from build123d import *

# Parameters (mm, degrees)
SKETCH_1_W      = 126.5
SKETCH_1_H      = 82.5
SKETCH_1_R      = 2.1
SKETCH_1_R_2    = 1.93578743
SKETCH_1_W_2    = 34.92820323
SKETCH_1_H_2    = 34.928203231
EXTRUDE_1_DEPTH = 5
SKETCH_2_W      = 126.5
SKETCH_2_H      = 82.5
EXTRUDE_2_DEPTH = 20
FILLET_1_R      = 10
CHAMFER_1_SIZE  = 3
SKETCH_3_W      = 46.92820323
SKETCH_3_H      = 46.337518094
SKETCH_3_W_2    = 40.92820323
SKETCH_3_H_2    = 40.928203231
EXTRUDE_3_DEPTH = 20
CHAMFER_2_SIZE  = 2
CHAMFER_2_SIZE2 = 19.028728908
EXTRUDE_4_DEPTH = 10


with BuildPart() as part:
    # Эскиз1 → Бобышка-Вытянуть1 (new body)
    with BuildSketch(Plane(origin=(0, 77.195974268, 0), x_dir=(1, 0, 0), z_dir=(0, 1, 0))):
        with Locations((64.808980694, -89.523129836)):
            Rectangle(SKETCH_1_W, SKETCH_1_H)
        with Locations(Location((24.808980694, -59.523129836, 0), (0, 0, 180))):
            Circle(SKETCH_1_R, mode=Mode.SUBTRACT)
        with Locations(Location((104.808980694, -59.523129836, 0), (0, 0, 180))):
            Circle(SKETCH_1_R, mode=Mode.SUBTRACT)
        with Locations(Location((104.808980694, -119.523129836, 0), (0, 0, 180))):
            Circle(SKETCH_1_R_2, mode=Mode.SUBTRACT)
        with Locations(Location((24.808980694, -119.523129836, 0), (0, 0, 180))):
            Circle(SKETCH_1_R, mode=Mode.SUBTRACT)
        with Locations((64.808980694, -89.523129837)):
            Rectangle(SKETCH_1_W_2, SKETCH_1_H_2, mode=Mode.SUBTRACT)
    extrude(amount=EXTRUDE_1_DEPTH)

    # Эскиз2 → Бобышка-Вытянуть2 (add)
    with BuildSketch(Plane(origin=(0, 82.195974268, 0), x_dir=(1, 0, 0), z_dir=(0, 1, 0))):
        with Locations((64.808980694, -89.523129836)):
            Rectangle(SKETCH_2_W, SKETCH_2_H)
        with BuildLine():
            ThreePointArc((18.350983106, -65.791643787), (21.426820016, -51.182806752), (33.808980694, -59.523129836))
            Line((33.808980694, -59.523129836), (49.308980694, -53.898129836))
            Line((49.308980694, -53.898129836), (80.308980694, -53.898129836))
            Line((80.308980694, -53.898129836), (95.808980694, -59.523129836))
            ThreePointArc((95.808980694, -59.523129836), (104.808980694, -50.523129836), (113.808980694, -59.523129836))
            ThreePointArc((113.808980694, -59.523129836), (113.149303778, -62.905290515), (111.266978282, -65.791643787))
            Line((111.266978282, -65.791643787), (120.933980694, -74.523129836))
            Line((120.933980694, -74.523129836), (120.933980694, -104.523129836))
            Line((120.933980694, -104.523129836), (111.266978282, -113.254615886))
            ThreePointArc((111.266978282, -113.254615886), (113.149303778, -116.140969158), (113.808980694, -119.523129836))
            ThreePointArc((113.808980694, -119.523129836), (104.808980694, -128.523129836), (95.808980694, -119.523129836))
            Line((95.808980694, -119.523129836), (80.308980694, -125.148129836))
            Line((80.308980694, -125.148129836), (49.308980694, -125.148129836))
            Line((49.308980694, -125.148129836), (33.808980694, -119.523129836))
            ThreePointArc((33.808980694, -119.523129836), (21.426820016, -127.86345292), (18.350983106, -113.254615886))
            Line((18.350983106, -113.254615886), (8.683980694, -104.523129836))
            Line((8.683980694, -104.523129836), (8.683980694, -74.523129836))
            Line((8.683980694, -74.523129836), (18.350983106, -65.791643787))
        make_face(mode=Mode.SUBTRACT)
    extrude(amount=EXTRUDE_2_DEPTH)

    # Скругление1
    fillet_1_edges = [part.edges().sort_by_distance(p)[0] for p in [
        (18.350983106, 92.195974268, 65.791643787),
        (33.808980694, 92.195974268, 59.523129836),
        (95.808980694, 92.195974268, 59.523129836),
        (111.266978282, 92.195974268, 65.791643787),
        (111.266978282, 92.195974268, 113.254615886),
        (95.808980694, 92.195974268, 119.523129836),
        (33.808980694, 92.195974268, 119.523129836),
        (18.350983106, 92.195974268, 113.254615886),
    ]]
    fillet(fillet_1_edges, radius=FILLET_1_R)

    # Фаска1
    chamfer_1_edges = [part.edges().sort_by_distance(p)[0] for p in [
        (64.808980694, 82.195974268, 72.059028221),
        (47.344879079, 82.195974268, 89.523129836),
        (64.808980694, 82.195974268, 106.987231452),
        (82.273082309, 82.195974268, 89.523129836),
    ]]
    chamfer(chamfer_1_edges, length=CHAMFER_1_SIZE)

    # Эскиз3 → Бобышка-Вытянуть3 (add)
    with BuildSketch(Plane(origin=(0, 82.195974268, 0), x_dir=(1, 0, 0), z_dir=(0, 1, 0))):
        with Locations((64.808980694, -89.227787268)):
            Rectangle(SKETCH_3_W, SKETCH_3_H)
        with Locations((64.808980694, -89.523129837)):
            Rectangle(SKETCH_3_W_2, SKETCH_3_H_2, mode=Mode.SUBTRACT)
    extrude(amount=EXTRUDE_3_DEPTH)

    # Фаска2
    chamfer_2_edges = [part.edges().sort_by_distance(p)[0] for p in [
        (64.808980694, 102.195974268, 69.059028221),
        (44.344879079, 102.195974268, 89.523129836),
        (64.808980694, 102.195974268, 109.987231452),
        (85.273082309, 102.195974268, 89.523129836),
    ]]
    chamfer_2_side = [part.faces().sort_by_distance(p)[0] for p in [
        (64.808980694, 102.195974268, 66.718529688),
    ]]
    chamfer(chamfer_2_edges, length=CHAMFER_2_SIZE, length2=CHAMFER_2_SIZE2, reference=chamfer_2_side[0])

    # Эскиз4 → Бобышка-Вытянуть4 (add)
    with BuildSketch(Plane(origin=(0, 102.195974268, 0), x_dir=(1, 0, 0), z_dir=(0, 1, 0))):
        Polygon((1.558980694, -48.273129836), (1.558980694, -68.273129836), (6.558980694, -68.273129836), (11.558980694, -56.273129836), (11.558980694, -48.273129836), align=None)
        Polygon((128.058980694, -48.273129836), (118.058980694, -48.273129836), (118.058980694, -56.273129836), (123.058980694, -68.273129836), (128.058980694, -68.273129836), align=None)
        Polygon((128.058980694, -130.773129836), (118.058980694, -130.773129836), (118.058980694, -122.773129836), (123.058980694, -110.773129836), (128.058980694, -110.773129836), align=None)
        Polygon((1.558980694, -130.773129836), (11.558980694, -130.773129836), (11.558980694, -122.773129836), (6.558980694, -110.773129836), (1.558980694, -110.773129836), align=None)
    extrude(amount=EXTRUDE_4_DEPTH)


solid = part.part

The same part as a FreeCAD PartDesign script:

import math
import FreeCAD as App
import Part
import Sketcher
from FreeCAD import Vector


def edges_at(feature, points):
    """Names of the edges that pass closest to the given points."""
    edges = feature.Shape.Edges
    near = lambda p: min(range(len(edges)), key=lambda i: edges[i].distToShape(Part.Vertex(*p))[0])
    return sorted({f"Edge{near(p) + 1}" for p in points})


def add_polygon(sketch, points):
    """Adds a closed chain of lines whose ends are joined by coincident constraints."""
    first, n = sketch.GeometryCount, len(points)
    for a, b in zip(points, points[1:] + points[:1]):
        sketch.addGeometry(Part.LineSegment(App.Vector(*a, 0), App.Vector(*b, 0)), False)
    for i in range(n):
        sketch.addConstraint(Sketcher.Constraint("Coincident", first + i, 2, first + (i + 1) % n, 1))

doc = App.newDocument("Part")
body = doc.addObject("PartDesign::Body", "Body")

sketch1 = body.newObject("Sketcher::SketchObject", "Sketch")
sketch1.AttachmentSupport = (doc.getObject("XZ_Plane"), [""])
sketch1.MapMode = "FlatFace"
sketch1.AttachmentOffset = App.Placement(Vector(0, 0, -77.195974), App.Rotation())
add_polygon(sketch1, [(1.558981, 48.27313), (1.558981, 130.77313), (128.058981, 130.77313), (128.058981, 48.27313)])
sketch1.addGeometry(Part.Circle(Vector(24.808981, 119.52313, 0), Vector(0, 0, 1), 2.1), False)
sketch1.addGeometry(Part.Circle(Vector(104.808981, 119.52313, 0), Vector(0, 0, 1), 1.935787), False)
add_polygon(sketch1, [(82.273082, 106.987231), (47.344879, 106.987231), (47.344879, 72.059028), (82.273082, 72.059028)])
sketch1.addGeometry(Part.Circle(Vector(24.808981, 59.52313, 0), Vector(0, 0, 1), 2.1), False)
sketch1.addGeometry(Part.Circle(Vector(104.808981, 59.52313, 0), Vector(0, 0, 1), 2.1), False)
sketch1.addConstraint([
    Sketcher.Constraint("Vertical", 0),
    Sketcher.Constraint("Horizontal", 1),
    Sketcher.Constraint("Vertical", 2),
    Sketcher.Constraint("Horizontal", 3),
    Sketcher.Constraint("Horizontal", 6),
    Sketcher.Constraint("Vertical", 7),
    Sketcher.Constraint("Horizontal", 8),
    Sketcher.Constraint("Vertical", 9),
    Sketcher.Constraint("Equal", 4, 10),
    Sketcher.Constraint("Equal", 10, 11),
    Sketcher.Constraint("Horizontal", 4, 3, 5, 3),
    Sketcher.Constraint("Horizontal", 10, 3, 11, 3),
    Sketcher.Constraint("Vertical", 4, 3, 10, 3),
    Sketcher.Constraint("Vertical", 5, 3, 11, 3),
    Sketcher.Constraint("Equal", 8, 7),
    Sketcher.Constraint("Diameter", 4, 4.2),
    Sketcher.Constraint("DistanceX", 1, 1, 1, 2, 126.5),
    Sketcher.Constraint("DistanceY", 0, 1, 0, 2, 82.5),
    Sketcher.Constraint("DistanceX", 4, 3, 5, 3, 80.0),
    Sketcher.Constraint("DistanceY", 10, 3, 4, 3, 60.0),
    Sketcher.Constraint("DistanceX", 0, 2, 4, 3, 23.25),
    Sketcher.Constraint("DistanceY", 4, 3, 0, 2, 11.25),
    Sketcher.Constraint("Diameter", 5, 3.871575),
    Sketcher.Constraint("DistanceX", 4, 3, 6, 2, 22.535898),
    Sketcher.Constraint("DistanceY", 6, 2, 4, 3, 12.535898),
    Sketcher.Constraint("DistanceY", 10, 3, 7, 2, 12.535898),
    Sketcher.Constraint("DistanceX", -1, 1, 4, 3, 24.808981),
    Sketcher.Constraint("DistanceY", -1, 1, 4, 3, 119.52313),
])
pad1 = body.newObject("PartDesign::Pad", "Pad")
pad1.Profile = sketch1
pad1.Length = 5
pad1.Reversed = True

sketch2 = body.newObject("Sketcher::SketchObject", "Sketch001")
sketch2.AttachmentSupport = (doc.getObject("XZ_Plane"), [""])
sketch2.MapMode = "FlatFace"
sketch2.AttachmentOffset = App.Placement(Vector(0, 0, -82.195974), App.Rotation())
add_polygon(sketch2, [(1.558981, 48.27313), (1.558981, 130.77313), (128.058981, 130.77313), (128.058981, 48.27313)])
sketch2.addGeometry(Part.LineSegment(Vector(8.683981, 74.52313, 0), Vector(18.350983, 65.791644, 0)), False)
sketch2.addGeometry(Part.ArcOfCircle(Part.Circle(Vector(24.808981, 59.52313, 0), Vector(0, 0, 1), 9), math.radians(135.853008), math.radians(360)), False)
sketch2.addGeometry(Part.LineSegment(Vector(33.808981, 59.52313, 0), Vector(49.308981, 53.89813, 0)), False)
sketch2.addGeometry(Part.LineSegment(Vector(49.308981, 53.89813, 0), Vector(80.308981, 53.89813, 0)), False)
sketch2.addGeometry(Part.LineSegment(Vector(80.308981, 53.89813, 0), Vector(95.808981, 59.52313, 0)), False)
sketch2.addGeometry(Part.ArcOfCircle(Part.Circle(Vector(104.808981, 59.52313, 0), Vector(0, 0, 1), 9), math.radians(180), math.radians(360)), False)
sketch2.addGeometry(Part.ArcOfCircle(Part.Circle(Vector(104.808981, 59.52313, 0), Vector(0, 0, 1), 9), math.radians(0), math.radians(44.146992)), False)
sketch2.addGeometry(Part.LineSegment(Vector(111.266978, 65.791644, 0), Vector(120.933981, 74.52313, 0)), False)
sketch2.addGeometry(Part.LineSegment(Vector(120.933981, 74.52313, 0), Vector(120.933981, 104.52313, 0)), False)
sketch2.addGeometry(Part.LineSegment(Vector(120.933981, 104.52313, 0), Vector(111.266978, 113.254616, 0)), False)
sketch2.addGeometry(Part.ArcOfCircle(Part.Circle(Vector(104.808981, 119.52313, 0), Vector(0, 0, 1), 9), math.radians(-44.146992), math.radians(0)), False)
sketch2.addGeometry(Part.ArcOfCircle(Part.Circle(Vector(104.808981, 119.52313, 0), Vector(0, 0, 1), 9), math.radians(0), math.radians(180)), False)
sketch2.addGeometry(Part.LineSegment(Vector(95.808981, 119.52313, 0), Vector(80.308981, 125.14813, 0)), False)
sketch2.addGeometry(Part.LineSegment(Vector(80.308981, 125.14813, 0), Vector(49.308981, 125.14813, 0)), False)
sketch2.addGeometry(Part.LineSegment(Vector(49.308981, 125.14813, 0), Vector(33.808981, 119.52313, 0)), False)
sketch2.addGeometry(Part.ArcOfCircle(Part.Circle(Vector(24.808981, 119.52313, 0), Vector(0, 0, 1), 9), math.radians(0), math.radians(224.146992)), False)
sketch2.addGeometry(Part.LineSegment(Vector(18.350983, 113.254616, 0), Vector(8.683981, 104.52313, 0)), False)
sketch2.addGeometry(Part.LineSegment(Vector(8.683981, 104.52313, 0), Vector(8.683981, 74.52313, 0)), False)
sketch2.addConstraint([
    Sketcher.Constraint("Coincident", 4, 2, 5, 1),
    Sketcher.Constraint("Coincident", 5, 2, 6, 1),
    Sketcher.Constraint("Coincident", 6, 2, 7, 1),
    Sketcher.Constraint("Coincident", 7, 2, 8, 1),
    Sketcher.Constraint("Coincident", 8, 2, 9, 1),
    Sketcher.Constraint("Tangent", 9, 2, 10, 1),
    Sketcher.Constraint("Coincident", 10, 2, 11, 1),
    Sketcher.Constraint("Coincident", 11, 2, 12, 1),
    Sketcher.Constraint("Coincident", 12, 2, 13, 1),
    Sketcher.Constraint("Coincident", 13, 2, 14, 1),
    Sketcher.Constraint("Tangent", 14, 2, 15, 1),
    Sketcher.Constraint("Coincident", 15, 2, 16, 1),
    Sketcher.Constraint("Coincident", 16, 2, 17, 1),
    Sketcher.Constraint("Coincident", 17, 2, 18, 1),
    Sketcher.Constraint("Coincident", 18, 2, 19, 1),
    Sketcher.Constraint("Coincident", 19, 2, 20, 1),
    Sketcher.Constraint("Coincident", 20, 2, 21, 1),
    Sketcher.Constraint("Coincident", 21, 2, 4, 1),
    Sketcher.Constraint("Vertical", 0),
    Sketcher.Constraint("Horizontal", 1),
    Sketcher.Constraint("Vertical", 2),
    Sketcher.Constraint("Horizontal", 3),
    Sketcher.Constraint("Horizontal", 7),
    Sketcher.Constraint("Vertical", 12),
    Sketcher.Constraint("Horizontal", 17),
    Sketcher.Constraint("Vertical", 21),
    Sketcher.Constraint("Equal", 5, 9),
    Sketcher.Constraint("Equal", 9, 10),
    Sketcher.Constraint("Equal", 10, 14),
    Sketcher.Constraint("Equal", 14, 15),
    Sketcher.Constraint("Equal", 15, 19),
    Sketcher.Constraint("Parallel", 4, 13),
    Sketcher.Constraint("Parallel", 6, 16),
    Sketcher.Constraint("Parallel", 8, 18),
    Sketcher.Constraint("Parallel", 11, 20),
    Sketcher.Constraint("Horizontal", 5, 3, 9, 3),
    Sketcher.Constraint("Horizontal", 15, 3, 19, 3),
    Sketcher.Constraint("Horizontal", 10, 3, 5, 2),
    Sketcher.Constraint("Horizontal", 5, 2, 8, 2),
    Sketcher.Constraint("Horizontal", 8, 2, 9, 2),
    Sketcher.Constraint("Horizontal", 4, 2, 10, 2),
    Sketcher.Constraint("Horizontal", 19, 3, 14, 2),
    Sketcher.Constraint("Horizontal", 14, 2, 15, 2),
    Sketcher.Constraint("Horizontal", 15, 2, 18, 2),
    Sketcher.Constraint("Horizontal", 13, 2, 19, 2),
    Sketcher.Constraint("Horizontal", 12, 2, 20, 2),
    Sketcher.Constraint("Horizontal", 11, 2, 21, 2),
    Sketcher.Constraint("Vertical", 10, 3, 14, 3),
    Sketcher.Constraint("Vertical", 5, 3, 19, 3),
    Sketcher.Constraint("Vertical", 10, 2, 13, 2),
    Sketcher.Constraint("Vertical", 7, 2, 16, 2),
    Sketcher.Constraint("Vertical", 6, 2, 17, 2),
    Sketcher.Constraint("Radius", 5, 9.0),
    Sketcher.Constraint("DistanceX", 7, 1, 7, 2, 31.0),
    Sketcher.Constraint("DistanceY", 12, 1, 12, 2, 30.0),
    Sketcher.Constraint("DistanceX", 1, 1, 1, 2, 126.5),
    Sketcher.Constraint("DistanceY", 0, 1, 0, 2, 82.5),
    Sketcher.Constraint("DistanceX", 5, 3, 9, 3, 80.0),
    Sketcher.Constraint("DistanceY", 10, 3, 14, 3, 60.0),
    Sketcher.Constraint("DistanceX", 0, 2, 19, 3, 23.25),
    Sketcher.Constraint("DistanceY", 19, 3, 0, 2, 11.25),
    Sketcher.Constraint("DistanceY", 6, 2, 5, 2, 5.625),
    Sketcher.Constraint("DistanceX", 9, 2, 11, 2, 7.125),
    Sketcher.Constraint("DistanceX", -1, 1, 5, 3, 24.808981),
    Sketcher.Constraint("DistanceY", -1, 1, 5, 3, 59.52313),
    Sketcher.Constraint("DistanceX", -1, 1, 10, 2, 111.266978),
])
pad2 = body.newObject("PartDesign::Pad", "Pad001")
pad2.Profile = sketch2
pad2.Length = 20
pad2.Reversed = True
doc.recompute()

fillet = body.newObject("PartDesign::Fillet", "Fillet")
fillet.Base = (pad2, edges_at(pad2, [
    (18.351, 92.196, 65.792),
    (33.809, 92.196, 59.523),
    (95.809, 92.196, 59.523),
    (111.267, 92.196, 65.792),
    (111.267, 92.196, 113.255),
    (95.809, 92.196, 119.523),
    (33.809, 92.196, 119.523),
    (18.351, 92.196, 113.255),
]))
fillet.Radius = 10
doc.recompute()

chamfer = body.newObject("PartDesign::Chamfer", "Chamfer")
chamfer.Base = (fillet, edges_at(fillet, [
    (64.809, 82.196, 72.059),
    (47.345, 82.196, 89.523),
    (64.809, 82.196, 106.987),
    (82.273, 82.196, 89.523),
]))
chamfer.Size = 3

sketch3 = body.newObject("Sketcher::SketchObject", "Sketch002")
sketch3.AttachmentSupport = (doc.getObject("XZ_Plane"), [""])
sketch3.MapMode = "FlatFace"
sketch3.AttachmentOffset = App.Placement(Vector(0, 0, -82.195974), App.Rotation())
add_polygon(sketch3, [(41.344879, 66.059028), (41.344879, 112.396546), (88.273082, 112.396546), (88.273082, 66.059028)])
add_polygon(sketch3, [(85.273082, 109.987231), (44.344879, 109.987231), (44.344879, 69.059028), (85.273082, 69.059028)])
sketch3.addConstraint([
    Sketcher.Constraint("Vertical", 0),
    Sketcher.Constraint("Horizontal", 1),
    Sketcher.Constraint("Vertical", 2),
    Sketcher.Constraint("Horizontal", 3),
    Sketcher.Constraint("Horizontal", 4),
    Sketcher.Constraint("Vertical", 5),
    Sketcher.Constraint("Horizontal", 6),
    Sketcher.Constraint("Vertical", 7),
    Sketcher.Constraint("Equal", 6, 5),
    Sketcher.Constraint("DistanceX", 0, 2, 4, 2, 3.0),
    Sketcher.Constraint("DistanceY", 3, 2, 5, 2, 3.0),
    Sketcher.Constraint("DistanceX", 6, 2, 2, 2, 3.0),
    Sketcher.Constraint("DistanceY", 0, 1, 0, 2, 46.337518),
    Sketcher.Constraint("DistanceX", 1, 1, 1, 2, 46.928203),
    Sketcher.Constraint("DistanceX", -1, 1, 0, 2, 41.344879),
    Sketcher.Constraint("DistanceY", -1, 1, 2, 2, 66.059028),
])
pad3 = body.newObject("PartDesign::Pad", "Pad002")
pad3.Profile = sketch3
pad3.Length = 20
pad3.Reversed = True
doc.recompute()

chamfer2 = body.newObject("PartDesign::Chamfer", "Chamfer001")
chamfer2.Base = (pad3, edges_at(pad3, [
    (64.809, 102.196, 69.059),
    (44.345, 102.196, 89.523),
    (64.809, 102.196, 109.987),
    (85.273, 102.196, 89.523),
]))
chamfer2.ChamferType = "Two distances"
chamfer2.Size = 2
chamfer2.Size2 = 19.028729

sketch4 = body.newObject("Sketcher::SketchObject", "Sketch003")
sketch4.AttachmentSupport = (doc.getObject("XZ_Plane"), [""])
sketch4.MapMode = "FlatFace"
sketch4.AttachmentOffset = App.Placement(Vector(0, 0, -102.195974), App.Rotation())
add_polygon(sketch4, [(1.558981, 48.27313), (1.558981, 68.27313), (6.558981, 68.27313), (11.558981, 56.27313), (11.558981, 48.27313)])
add_polygon(sketch4, [(128.058981, 48.27313), (118.058981, 48.27313), (118.058981, 56.27313), (123.058981, 68.27313), (128.058981, 68.27313)])
add_polygon(sketch4, [(118.058981, 130.77313), (128.058981, 130.77313), (128.058981, 110.77313), (123.058981, 110.77313), (118.058981, 122.77313)])
add_polygon(sketch4, [(1.558981, 130.77313), (11.558981, 130.77313), (11.558981, 122.77313), (6.558981, 110.77313), (1.558981, 110.77313)])
sketch4.addConstraint([
    Sketcher.Constraint("Vertical", 0),
    Sketcher.Constraint("Horizontal", 1),
    Sketcher.Constraint("Vertical", 3),
    Sketcher.Constraint("Horizontal", 4),
    Sketcher.Constraint("Horizontal", 5),
    Sketcher.Constraint("Vertical", 6),
    Sketcher.Constraint("Horizontal", 8),
    Sketcher.Constraint("Vertical", 9),
    Sketcher.Constraint("Horizontal", 10),
    Sketcher.Constraint("Vertical", 11),
    Sketcher.Constraint("Horizontal", 12),
    Sketcher.Constraint("Vertical", 14),
    Sketcher.Constraint("Horizontal", 15),
    Sketcher.Constraint("Vertical", 16),
    Sketcher.Constraint("Horizontal", 18),
    Sketcher.Constraint("Vertical", 19),
    Sketcher.Constraint("Parallel", 2, 13),
    Sketcher.Constraint("Parallel", 7, 17),
    Sketcher.Constraint("Horizontal", 4, 2, 5, 2),
    Sketcher.Constraint("Horizontal", 2, 2, 6, 2),
    Sketcher.Constraint("Horizontal", 1, 2, 7, 2),
    Sketcher.Constraint("Horizontal", 14, 2, 15, 2),
    Sketcher.Constraint("Horizontal", 13, 2, 16, 2),
    Sketcher.Constraint("Horizontal", 12, 2, 17, 2),
    Sketcher.Constraint("Vertical", 9, 2, 10, 2),
    Sketcher.Constraint("Vertical", 7, 2, 12, 2),
    Sketcher.Constraint("Vertical", 6, 2, 13, 2),
    Sketcher.Constraint("Vertical", 3, 2, 15, 2),
    Sketcher.Constraint("Vertical", 1, 2, 17, 2),
    Sketcher.Constraint("Vertical", 4, 2, 18, 2),
    Sketcher.Constraint("Equal", 4, 5),
    Sketcher.Constraint("Equal", 9, 11),
    Sketcher.Constraint("DistanceX", 1, 1, 1, 2, 5.0),
    Sketcher.Constraint("DistanceX", 4, 2, 4, 1, 10.0),
    Sketcher.Constraint("DistanceY", 0, 1, 0, 2, 20.0),
    Sketcher.Constraint("DistanceY", 3, 2, 3, 1, 8.0),
    Sketcher.Constraint("DistanceX", 3, 2, 5, 2, 106.5),
    Sketcher.Constraint("DistanceY", 8, 2, 10, 2, 62.5),
    Sketcher.Constraint("DistanceX", -1, 1, 0, 2, 1.558981),
    Sketcher.Constraint("DistanceY", -1, 1, 0, 2, 68.27313),
])
pad4 = body.newObject("PartDesign::Pad", "Pad003")
pad4.Profile = sketch4
pad4.Length = 10
pad4.Reversed = True

doc.recompute()
